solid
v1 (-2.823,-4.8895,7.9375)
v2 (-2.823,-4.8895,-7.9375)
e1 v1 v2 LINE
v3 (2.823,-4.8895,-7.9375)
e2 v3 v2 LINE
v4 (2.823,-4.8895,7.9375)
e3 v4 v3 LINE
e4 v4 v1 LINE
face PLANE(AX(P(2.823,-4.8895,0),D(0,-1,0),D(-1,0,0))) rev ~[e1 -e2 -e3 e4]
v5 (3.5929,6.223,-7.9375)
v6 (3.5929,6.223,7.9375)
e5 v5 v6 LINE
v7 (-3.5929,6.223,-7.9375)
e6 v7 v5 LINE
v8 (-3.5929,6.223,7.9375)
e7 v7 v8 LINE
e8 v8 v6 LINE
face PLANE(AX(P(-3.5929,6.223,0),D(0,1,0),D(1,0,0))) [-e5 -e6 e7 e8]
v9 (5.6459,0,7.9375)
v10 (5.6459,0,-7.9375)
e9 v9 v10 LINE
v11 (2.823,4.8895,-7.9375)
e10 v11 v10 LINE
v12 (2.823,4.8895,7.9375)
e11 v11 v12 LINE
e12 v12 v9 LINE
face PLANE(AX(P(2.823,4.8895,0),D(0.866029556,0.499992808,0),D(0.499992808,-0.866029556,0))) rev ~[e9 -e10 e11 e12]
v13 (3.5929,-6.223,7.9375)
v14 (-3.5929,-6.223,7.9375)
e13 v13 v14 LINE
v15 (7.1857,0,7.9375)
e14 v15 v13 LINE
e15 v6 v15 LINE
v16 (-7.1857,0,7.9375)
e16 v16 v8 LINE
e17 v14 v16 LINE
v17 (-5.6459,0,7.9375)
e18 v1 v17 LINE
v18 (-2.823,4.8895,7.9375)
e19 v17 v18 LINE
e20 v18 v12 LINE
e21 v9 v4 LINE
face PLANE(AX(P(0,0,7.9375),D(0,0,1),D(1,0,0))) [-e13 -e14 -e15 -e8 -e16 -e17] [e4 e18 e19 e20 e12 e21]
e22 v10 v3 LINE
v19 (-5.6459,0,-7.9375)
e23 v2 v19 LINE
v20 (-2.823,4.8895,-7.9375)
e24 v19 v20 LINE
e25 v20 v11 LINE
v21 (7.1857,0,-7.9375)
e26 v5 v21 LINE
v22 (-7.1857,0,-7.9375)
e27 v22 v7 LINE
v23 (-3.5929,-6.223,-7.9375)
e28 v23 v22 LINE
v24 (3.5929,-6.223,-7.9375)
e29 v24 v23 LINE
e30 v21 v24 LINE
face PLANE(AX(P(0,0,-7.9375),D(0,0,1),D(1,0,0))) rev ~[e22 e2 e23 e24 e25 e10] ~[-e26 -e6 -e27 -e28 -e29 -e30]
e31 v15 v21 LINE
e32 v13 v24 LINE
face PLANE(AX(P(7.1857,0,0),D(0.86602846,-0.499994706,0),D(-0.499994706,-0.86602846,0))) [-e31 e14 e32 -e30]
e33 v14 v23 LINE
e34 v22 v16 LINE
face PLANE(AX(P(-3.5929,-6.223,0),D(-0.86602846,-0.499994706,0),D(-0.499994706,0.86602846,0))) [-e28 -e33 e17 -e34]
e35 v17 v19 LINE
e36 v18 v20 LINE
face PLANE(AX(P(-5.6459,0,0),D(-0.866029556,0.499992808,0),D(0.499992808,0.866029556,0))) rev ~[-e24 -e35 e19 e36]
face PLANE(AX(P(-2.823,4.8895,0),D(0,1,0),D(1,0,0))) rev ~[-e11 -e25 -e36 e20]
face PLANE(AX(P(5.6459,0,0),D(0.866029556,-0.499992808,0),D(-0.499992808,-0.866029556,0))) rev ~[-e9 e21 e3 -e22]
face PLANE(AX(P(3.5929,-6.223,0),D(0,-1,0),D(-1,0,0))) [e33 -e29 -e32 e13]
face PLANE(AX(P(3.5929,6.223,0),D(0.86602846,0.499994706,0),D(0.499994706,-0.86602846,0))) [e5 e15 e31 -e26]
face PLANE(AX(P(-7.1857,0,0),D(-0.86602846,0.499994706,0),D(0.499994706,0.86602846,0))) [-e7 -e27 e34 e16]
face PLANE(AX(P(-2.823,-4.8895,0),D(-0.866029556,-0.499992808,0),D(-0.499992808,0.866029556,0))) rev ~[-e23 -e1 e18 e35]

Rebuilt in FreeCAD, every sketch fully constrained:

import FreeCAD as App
import Part
import Sketcher
Q = App.Units.Quantity

doc = App.newDocument("Part")
body = doc.addObject("PartDesign::Body", "Body")

# Sketch on XY plane
sketch1 = body.newObject("Sketcher::SketchObject", "Sketch")
sketch1.AttachmentSupport = (doc.getObject("XY_Plane"), [""])
sketch1.MapMode = "FlatFace"
sketch1.addGeometry(Part.LineSegment(App.Vector(7, 0, 0), App.Vector(4, 6, 0)), False)
sketch1.addGeometry(Part.LineSegment(App.Vector(4, 6, 0), App.Vector(-4, 6, 0)), False)
sketch1.addGeometry(Part.LineSegment(App.Vector(-4, 6, 0), App.Vector(-7, 0, 0)), False)
sketch1.addGeometry(Part.LineSegment(App.Vector(-7, 0, 0), App.Vector(-4, -6, 0)), False)
sketch1.addGeometry(Part.LineSegment(App.Vector(-4, -6, 0), App.Vector(4, -6, 0)), False)
sketch1.addGeometry(Part.LineSegment(App.Vector(4, -6, 0), App.Vector(7, 0, 0)), False)
sketch1.addGeometry(Part.LineSegment(App.Vector(-3, 5, 0), App.Vector(3, 5, 0)), False)
sketch1.addGeometry(Part.LineSegment(App.Vector(3, 5, 0), App.Vector(6, 0, 0)), False)
sketch1.addGeometry(Part.LineSegment(App.Vector(6, 0, 0), App.Vector(3, -5, 0)), False)
sketch1.addGeometry(Part.LineSegment(App.Vector(3, -5, 0), App.Vector(-3, -5, 0)), False)
sketch1.addGeometry(Part.LineSegment(App.Vector(-3, -5, 0), App.Vector(-6, 0, 0)), False)
sketch1.addGeometry(Part.LineSegment(App.Vector(-6, 0, 0), App.Vector(-3, 5, 0)), False)
sketch1.addConstraint(Sketcher.Constraint("Coincident", 0, 2, 1, 1))
sketch1.addConstraint(Sketcher.Constraint("Coincident", 1, 2, 2, 1))
sketch1.addConstraint(Sketcher.Constraint("Coincident", 2, 2, 3, 1))
sketch1.addConstraint(Sketcher.Constraint("Coincident", 3, 2, 4, 1))
sketch1.addConstraint(Sketcher.Constraint("Coincident", 4, 2, 5, 1))
sketch1.addConstraint(Sketcher.Constraint("Coincident", 5, 2, 0, 1))
sketch1.addConstraint(Sketcher.Constraint("Coincident", 6, 2, 7, 1))
sketch1.addConstraint(Sketcher.Constraint("Coincident", 7, 2, 8, 1))
sketch1.addConstraint(Sketcher.Constraint("Coincident", 8, 2, 9, 1))
sketch1.addConstraint(Sketcher.Constraint("Coincident", 9, 2, 10, 1))
sketch1.addConstraint(Sketcher.Constraint("Coincident", 10, 2, 11, 1))
sketch1.addConstraint(Sketcher.Constraint("Coincident", 11, 2, 6, 1))
sketch1.addConstraint(Sketcher.Constraint("Horizontal", 1))
sketch1.addConstraint(Sketcher.Constraint("Horizontal", 4))
sketch1.addConstraint(Sketcher.Constraint("Horizontal", 6))
sketch1.addConstraint(Sketcher.Constraint("Horizontal", 9))
sketch1.addConstraint(Sketcher.Constraint("Symmetric", 0, 2, 3, 2, -1, 1))
sketch1.addConstraint(Sketcher.Constraint("Symmetric", 2, 2, 5, 2, -1, 1))
sketch1.addConstraint(Sketcher.Constraint("Symmetric", 6, 2, 9, 2, -1, 1))
sketch1.addConstraint(Sketcher.Constraint("Symmetric", 7, 2, 10, 2, -1, 1))
sketch1.addConstraint(Sketcher.Constraint("PointOnObject", 2, 2, -1))
sketch1.addConstraint(Sketcher.Constraint("PointOnObject", 7, 2, -1))
sketch1.addConstraint(Sketcher.Constraint("Parallel", 2, 5))
sketch1.addConstraint(Sketcher.Constraint("Parallel", 3, 7))
sketch1.addConstraint(Sketcher.Constraint("Parallel", 5, 8))
sketch1.addConstraint(Sketcher.Constraint("Parallel", 8, 11))
sketch1.addConstraint(Sketcher.Constraint("Vertical", 1, 2, 3, 2))
sketch1.addConstraint(Sketcher.Constraint("DistanceY", 3, 2, 1, 2, Q("0.49 in")))
sketch1.addConstraint(Sketcher.Constraint("Angle", 0, Q("119.9996 deg")))
sketch1.addConstraint(Sketcher.Constraint("DistanceY", 8, 2, 6, 2, Q("0.385 in")))
sketch1.addConstraint(Sketcher.Constraint("DistanceX", 1, 2, 1, 1, Q("0.2829 in")))
sketch1.addConstraint(Sketcher.Constraint("DistanceX", 6, 1, 6, 2, Q("5.646 mm")))
pad1 = body.newObject("PartDesign::Pad", "Pad")
pad1.Profile = sketch1
pad1.Length = Q("0.625 in")
pad1.Midplane = True

doc.recompute()
